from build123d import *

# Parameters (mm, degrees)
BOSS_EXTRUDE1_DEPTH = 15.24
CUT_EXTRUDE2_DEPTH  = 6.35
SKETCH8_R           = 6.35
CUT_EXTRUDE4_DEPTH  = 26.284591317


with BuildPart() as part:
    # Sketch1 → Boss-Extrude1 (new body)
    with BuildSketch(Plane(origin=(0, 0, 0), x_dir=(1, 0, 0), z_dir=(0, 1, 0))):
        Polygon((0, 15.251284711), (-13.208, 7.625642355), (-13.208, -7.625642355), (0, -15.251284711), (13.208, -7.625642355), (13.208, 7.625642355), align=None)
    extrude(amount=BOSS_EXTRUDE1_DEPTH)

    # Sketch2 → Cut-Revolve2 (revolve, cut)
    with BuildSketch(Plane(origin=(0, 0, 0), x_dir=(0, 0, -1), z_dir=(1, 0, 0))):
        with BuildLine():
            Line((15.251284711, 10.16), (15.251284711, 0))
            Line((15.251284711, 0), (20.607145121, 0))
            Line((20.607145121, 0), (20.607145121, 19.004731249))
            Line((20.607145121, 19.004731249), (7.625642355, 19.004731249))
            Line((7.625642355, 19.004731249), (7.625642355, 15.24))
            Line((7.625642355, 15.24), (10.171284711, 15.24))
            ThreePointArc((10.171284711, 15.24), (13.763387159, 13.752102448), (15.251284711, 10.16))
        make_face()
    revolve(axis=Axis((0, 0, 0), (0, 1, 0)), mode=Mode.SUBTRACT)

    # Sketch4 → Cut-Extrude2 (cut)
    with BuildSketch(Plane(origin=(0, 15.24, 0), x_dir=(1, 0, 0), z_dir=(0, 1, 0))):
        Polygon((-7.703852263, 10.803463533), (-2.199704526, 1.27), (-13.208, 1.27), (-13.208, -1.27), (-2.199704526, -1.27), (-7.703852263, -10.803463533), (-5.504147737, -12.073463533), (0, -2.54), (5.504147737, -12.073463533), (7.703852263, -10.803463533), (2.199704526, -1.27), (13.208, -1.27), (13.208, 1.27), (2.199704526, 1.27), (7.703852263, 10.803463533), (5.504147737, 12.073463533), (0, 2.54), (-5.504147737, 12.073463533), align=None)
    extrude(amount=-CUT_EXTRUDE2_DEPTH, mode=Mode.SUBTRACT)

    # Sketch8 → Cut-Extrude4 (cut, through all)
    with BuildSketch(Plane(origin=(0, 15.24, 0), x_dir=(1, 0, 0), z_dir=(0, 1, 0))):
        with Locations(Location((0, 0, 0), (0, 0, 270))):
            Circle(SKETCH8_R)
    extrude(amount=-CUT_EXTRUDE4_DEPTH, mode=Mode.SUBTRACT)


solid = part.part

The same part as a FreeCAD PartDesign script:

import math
import FreeCAD as App
import Part
import Sketcher
Q = App.Units.Quantity

doc = App.newDocument("Part")
body = doc.addObject("PartDesign::Body", "Body")

# Sketch on XZ plane
sketch1 = body.newObject("Sketcher::SketchObject", "Sketch")
sketch1.AttachmentSupport = (doc.getObject("XZ_Plane"), [""])
sketch1.MapMode = "FlatFace"
sketch1.addGeometry(Part.LineSegment(App.Vector(0, -15, 0), App.Vector(-13, -8, 0)), False)
sketch1.addGeometry(Part.LineSegment(App.Vector(-13, -8, 0), App.Vector(-13, 8, 0)), False)
sketch1.addGeometry(Part.LineSegment(App.Vector(-13, 8, 0), App.Vector(0, 15, 0)), False)
sketch1.addGeometry(Part.LineSegment(App.Vector(0, 15, 0), App.Vector(13, 8, 0)), False)
sketch1.addGeometry(Part.LineSegment(App.Vector(13, 8, 0), App.Vector(13, -8, 0)), False)
sketch1.addGeometry(Part.LineSegment(App.Vector(13, -8, 0), App.Vector(0, -15, 0)), False)
sketch1.addConstraint(Sketcher.Constraint("Coincident", 0, 2, 1, 1))
sketch1.addConstraint(Sketcher.Constraint("Coincident", 1, 2, 2, 1))
sketch1.addConstraint(Sketcher.Constraint("Coincident", 2, 2, 3, 1))
sketch1.addConstraint(Sketcher.Constraint("Coincident", 3, 2, 4, 1))
sketch1.addConstraint(Sketcher.Constraint("Coincident", 4, 2, 5, 1))
sketch1.addConstraint(Sketcher.Constraint("Coincident", 5, 2, 0, 1))
sketch1.addConstraint(Sketcher.Constraint("Vertical", 1))
sketch1.addConstraint(Sketcher.Constraint("Vertical", 4))
sketch1.addConstraint(Sketcher.Constraint("Symmetric", 0, 2, 3, 2, -1, 1))
sketch1.addConstraint(Sketcher.Constraint("Symmetric", 2, 2, 5, 2, -1, 1))
sketch1.addConstraint(Sketcher.Constraint("PointOnObject", 2, 2, -2))
sketch1.addConstraint(Sketcher.Constraint("Parallel", 2, 5))
sketch1.addConstraint(Sketcher.Constraint("Horizontal", 1, 2, 3, 2))
sketch1.addConstraint(Sketcher.Constraint("Angle", 0, Q("150 deg")))
sketch1.addConstraint(Sketcher.Constraint("DistanceX", 0, 2, -1, 1, Q("0.52 in")))
sketch1.addConstraint(Sketcher.Constraint("DistanceY", 1, 1, 1, 2, 15.251285))
pad1 = body.newObject("PartDesign::Pad", "Pad")
pad1.Profile = sketch1
pad1.Length = Q("0.6 in")
pad1.Reversed = True

# Sketch on YZ plane
sketch2 = body.newObject("Sketcher::SketchObject", "Sketch001")
sketch2.AttachmentSupport = (doc.getObject("YZ_Plane"), [""])
sketch2.MapMode = "FlatFace"
sketch2.addGeometry(Part.LineSegment(App.Vector(10.2, -15.3, 0), App.Vector(0, -15.3, 0)), False)
sketch2.addGeometry(Part.LineSegment(App.Vector(0, -15.3, 0), App.Vector(0, -20.6, 0)), False)
sketch2.addGeometry(Part.LineSegment(App.Vector(0, -20.6, 0), App.Vector(19, -20.6, 0)), False)
sketch2.addGeometry(Part.LineSegment(App.Vector(19, -20.6, 0), App.Vector(19, -7.6, 0)), False)
sketch2.addGeometry(Part.LineSegment(App.Vector(19, -7.6, 0), App.Vector(15.2, -7.6, 0)), False)
sketch2.addGeometry(Part.LineSegment(App.Vector(15.2, -7.6, 0), App.Vector(15.2, -10.2, 0)), False)
sketch2.addGeometry(Part.ArcOfCircle(Part.Circle(App.Vector(10.2, -10.2, 0), App.Vector(0, 0, 1), 5.1), math.radians(-90), math.radians(0)), False)
sketch2.addConstraint(Sketcher.Constraint("Coincident", 0, 2, 1, 1))
sketch2.addConstraint(Sketcher.Constraint("Coincident", 1, 2, 2, 1))
sketch2.addConstraint(Sketcher.Constraint("Coincident", 2, 2, 3, 1))
sketch2.addConstraint(Sketcher.Constraint("Coincident", 3, 2, 4, 1))
sketch2.addConstraint(Sketcher.Constraint("Coincident", 4, 2, 5, 1))
sketch2.addConstraint(Sketcher.Constraint("Tangent", 5, 2, 6, 2))
sketch2.addConstraint(Sketcher.Constraint("Tangent", 6, 1, 0, 1))
sketch2.addConstraint(Sketcher.Constraint("Horizontal", 0))
sketch2.addConstraint(Sketcher.Constraint("Vertical", 1))
sketch2.addConstraint(Sketcher.Constraint("Horizontal", 2))
sketch2.addConstraint(Sketcher.Constraint("Vertical", 3))
sketch2.addConstraint(Sketcher.Constraint("Horizontal", 4))
sketch2.addConstraint(Sketcher.Constraint("Vertical", 5))
sketch2.addConstraint(Sketcher.Constraint("PointOnObject", 0, 2, -2))
sketch2.addConstraint(Sketcher.Constraint("Radius", 6, Q("0.2 in")))
sketch2.addConstraint(Sketcher.Constraint("DistanceX", 0, 2, 0, 1, Q("0.4 in")))
sketch2.addConstraint(Sketcher.Constraint("DistanceX", 2, 1, 2, 2, 19.004731))
sketch2.addConstraint(Sketcher.Constraint("DistanceY", 1, 2, 1, 1, 5.35586))
sketch2.addConstraint(Sketcher.Constraint("DistanceY", 3, 1, 3, 2, 12.981503))
sketch2.addConstraint(Sketcher.Constraint("DistanceY", 6, 3, -1, 1, 10.171285))
groove = body.newObject("PartDesign::Groove", "Groove")
groove.Profile = sketch2
groove.ReferenceAxis = (sketch2, ["H_Axis"])
groove.Angle = 360

# Sketch on XZ plane
sketch3 = body.newObject("Sketcher::SketchObject", "Sketch002")
sketch3.AttachmentSupport = (doc.getObject("XZ_Plane"), [""])
sketch3.MapMode = "FlatFace"
sketch3.AttachmentOffset = App.Placement(App.Vector(0, 0, -0.6 * 25.4), App.Rotation())
sketch3.addGeometry(Part.LineSegment(App.Vector(-7.7, -10.8, 0), App.Vector(-2.2, -1.3, 0)), False)
sketch3.addGeometry(Part.LineSegment(App.Vector(-2.2, -1.3, 0), App.Vector(-13.2, -1.3, 0)), False)
sketch3.addGeometry(Part.LineSegment(App.Vector(-13.2, -1.3, 0), App.Vector(-13.2, 1.3, 0)), False)
sketch3.addGeometry(Part.LineSegment(App.Vector(-13.2, 1.3, 0), App.Vector(-2.2, 1.3, 0)), False)
sketch3.addGeometry(Part.LineSegment(App.Vector(-2.2, 1.3, 0), App.Vector(-7.7, 10.8, 0)), False)
sketch3.addGeometry(Part.LineSegment(App.Vector(-7.7, 10.8, 0), App.Vector(-5.5, 12.1, 0)), False)
sketch3.addGeometry(Part.LineSegment(App.Vector(-5.5, 12.1, 0), App.Vector(0, 2.5, 0)), False)
sketch3.addGeometry(Part.LineSegment(App.Vector(0, 2.5, 0), App.Vector(5.5, 12.1, 0)), False)
sketch3.addGeometry(Part.LineSegment(App.Vector(5.5, 12.1, 0), App.Vector(7.7, 10.8, 0)), False)
sketch3.addGeometry(Part.LineSegment(App.Vector(7.7, 10.8, 0), App.Vector(2.2, 1.3, 0)), False)
sketch3.addGeometry(Part.LineSegment(App.Vector(2.2, 1.3, 0), App.Vector(13.2, 1.3, 0)), False)
sketch3.addGeometry(Part.LineSegment(App.Vector(13.2, 1.3, 0), App.Vector(13.2, -1.3, 0)), False)
sketch3.addGeometry(Part.LineSegment(App.Vector(13.2, -1.3, 0), App.Vector(2.2, -1.3, 0)), False)
sketch3.addGeometry(Part.LineSegment(App.Vector(2.2, -1.3, 0), App.Vector(7.7, -10.8, 0)), False)
sketch3.addGeometry(Part.LineSegment(App.Vector(7.7, -10.8, 0), App.Vector(5.5, -12.1, 0)), False)
sketch3.addGeometry(Part.LineSegment(App.Vector(5.5, -12.1, 0), App.Vector(0, -2.5, 0)), False)
sketch3.addGeometry(Part.LineSegment(App.Vector(0, -2.5, 0), App.Vector(-5.5, -12.1, 0)), False)
sketch3.addGeometry(Part.LineSegment(App.Vector(-5.5, -12.1, 0), App.Vector(-7.7, -10.8, 0)), False)
sketch3.addConstraint(Sketcher.Constraint("Coincident", 0, 2, 1, 1))
sketch3.addConstraint(Sketcher.Constraint("Coincident", 1, 2, 2, 1))
sketch3.addConstraint(Sketcher.Constraint("Coincident", 2, 2, 3, 1))
sketch3.addConstraint(Sketcher.Constraint("Coincident", 3, 2, 4, 1))
sketch3.addConstraint(Sketcher.Constraint("Coincident", 4, 2, 5, 1))
sketch3.addConstraint(Sketcher.Constraint("Coincident", 5, 2, 6, 1))
sketch3.addConstraint(Sketcher.Constraint("Coincident", 6, 2, 7, 1))
sketch3.addConstraint(Sketcher.Constraint("Coincident", 7, 2, 8, 1))
sketch3.addConstraint(Sketcher.Constraint("Coincident", 8, 2, 9, 1))
sketch3.addConstraint(Sketcher.Constraint("Coincident", 9, 2, 10, 1))
sketch3.addConstraint(Sketcher.Constraint("Coincident", 10, 2, 11, 1))
sketch3.addConstraint(Sketcher.Constraint("Coincident", 11, 2, 12, 1))
sketch3.addConstraint(Sketcher.Constraint("Coincident", 12, 2, 13, 1))
sketch3.addConstraint(Sketcher.Constraint("Coincident", 13, 2, 14, 1))
sketch3.addConstraint(Sketcher.Constraint("Coincident", 14, 2, 15, 1))
sketch3.addConstraint(Sketcher.Constraint("Coincident", 15, 2, 16, 1))
sketch3.addConstraint(Sketcher.Constraint("Coincident", 16, 2, 17, 1))
sketch3.addConstraint(Sketcher.Constraint("Coincident", 17, 2, 0, 1))
sketch3.addConstraint(Sketcher.Constraint("Horizontal", 1))
sketch3.addConstraint(Sketcher.Constraint("Vertical", 2))
sketch3.addConstraint(Sketcher.Constraint("Horizontal", 3))
sketch3.addConstraint(Sketcher.Constraint("Horizontal", 10))
sketch3.addConstraint(Sketcher.Constraint("Vertical", 11))
sketch3.addConstraint(Sketcher.Constraint("Horizontal", 12))
sketch3.addConstraint(Sketcher.Constraint("Symmetric", 0, 2, 9, 2, -1, 1))
sketch3.addConstraint(Sketcher.Constraint("Symmetric", 2, 2, 11, 2, -1, 1))
sketch3.addConstraint(Sketcher.Constraint("Symmetric", 4, 2, 13, 2, -1, 1))
sketch3.addConstraint(Sketcher.Constraint("Symmetric", 5, 2, 14, 2, -1, 1))
sketch3.addConstraint(Sketcher.Constraint("Symmetric", 6, 2, 15, 2, -1, 1))
sketch3.addConstraint(Sketcher.Constraint("Symmetric", 7, 2, 16, 2, -1, 1))
sketch3.addConstraint(Sketcher.Constraint("Symmetric", 8, 2, 17, 2, -1, 1))
sketch3.addConstraint(Sketcher.Constraint("Symmetric", 5, 2, 7, 2, -2))
sketch3.addConstraint(Sketcher.Constraint("Symmetric", 4, 2, 8, 2, -2))
sketch3.addConstraint(Sketcher.Constraint("Symmetric", 3, 2, 9, 2, -2))
sketch3.addConstraint(Sketcher.Constraint("PointOnObject", 6, 2, -2))
sketch3.addConstraint(Sketcher.Constraint("Perpendicular", 4, 5))
sketch3.addConstraint(Sketcher.Constraint("Perpendicular", 5, 6))
sketch3.addConstraint(Sketcher.Constraint("Parallel", 6, 13))
sketch3.addConstraint(Sketcher.Constraint("Equal", 4, 6))
sketch3.addConstraint(Sketcher.Constraint("DistanceY", 2, 1, 2, 2, Q("0.1 in")))
sketch3.addConstraint(Sketcher.Constraint("Angle", 0, Q("60 deg")))
sketch3.addConstraint(Sketcher.Constraint("Distance", 5, Q("0.1 in")))
sketch3.addConstraint(Sketcher.Constraint("DistanceX", 1, 2, -1, 1, Q("0.52 in")))
sketch3.addConstraint(Sketcher.Constraint("DistanceX", 4, 2, 7, 2, Q("0.52 in")))
pocket1 = body.newObject("PartDesign::Pocket", "Pocket")
pocket1.Profile = sketch3
pocket1.Length = Q("0.25 in")
pocket1.Reversed = True

# Sketch on XZ plane
sketch4 = body.newObject("Sketcher::SketchObject", "Sketch003")
sketch4.AttachmentSupport = (doc.getObject("XZ_Plane"), [""])
sketch4.MapMode = "FlatFace"
sketch4.AttachmentOffset = App.Placement(App.Vector(0, 0, -0.6 * 25.4), App.Rotation())
sketch4.addGeometry(Part.Circle(App.Vector(0, 0, 0), App.Vector(0, 0, 1), 6), False)
sketch4.addConstraint(Sketcher.Constraint("Coincident", 0, 3, -1, 1))
sketch4.addConstraint(Sketcher.Constraint("Diameter", 0, Q("0.5 in")))
pocket2 = body.newObject("PartDesign::Pocket", "Pocket001")
pocket2.Profile = sketch4
pocket2.Type = "ThroughAll"
pocket2.Reversed = True

doc.recompute()
